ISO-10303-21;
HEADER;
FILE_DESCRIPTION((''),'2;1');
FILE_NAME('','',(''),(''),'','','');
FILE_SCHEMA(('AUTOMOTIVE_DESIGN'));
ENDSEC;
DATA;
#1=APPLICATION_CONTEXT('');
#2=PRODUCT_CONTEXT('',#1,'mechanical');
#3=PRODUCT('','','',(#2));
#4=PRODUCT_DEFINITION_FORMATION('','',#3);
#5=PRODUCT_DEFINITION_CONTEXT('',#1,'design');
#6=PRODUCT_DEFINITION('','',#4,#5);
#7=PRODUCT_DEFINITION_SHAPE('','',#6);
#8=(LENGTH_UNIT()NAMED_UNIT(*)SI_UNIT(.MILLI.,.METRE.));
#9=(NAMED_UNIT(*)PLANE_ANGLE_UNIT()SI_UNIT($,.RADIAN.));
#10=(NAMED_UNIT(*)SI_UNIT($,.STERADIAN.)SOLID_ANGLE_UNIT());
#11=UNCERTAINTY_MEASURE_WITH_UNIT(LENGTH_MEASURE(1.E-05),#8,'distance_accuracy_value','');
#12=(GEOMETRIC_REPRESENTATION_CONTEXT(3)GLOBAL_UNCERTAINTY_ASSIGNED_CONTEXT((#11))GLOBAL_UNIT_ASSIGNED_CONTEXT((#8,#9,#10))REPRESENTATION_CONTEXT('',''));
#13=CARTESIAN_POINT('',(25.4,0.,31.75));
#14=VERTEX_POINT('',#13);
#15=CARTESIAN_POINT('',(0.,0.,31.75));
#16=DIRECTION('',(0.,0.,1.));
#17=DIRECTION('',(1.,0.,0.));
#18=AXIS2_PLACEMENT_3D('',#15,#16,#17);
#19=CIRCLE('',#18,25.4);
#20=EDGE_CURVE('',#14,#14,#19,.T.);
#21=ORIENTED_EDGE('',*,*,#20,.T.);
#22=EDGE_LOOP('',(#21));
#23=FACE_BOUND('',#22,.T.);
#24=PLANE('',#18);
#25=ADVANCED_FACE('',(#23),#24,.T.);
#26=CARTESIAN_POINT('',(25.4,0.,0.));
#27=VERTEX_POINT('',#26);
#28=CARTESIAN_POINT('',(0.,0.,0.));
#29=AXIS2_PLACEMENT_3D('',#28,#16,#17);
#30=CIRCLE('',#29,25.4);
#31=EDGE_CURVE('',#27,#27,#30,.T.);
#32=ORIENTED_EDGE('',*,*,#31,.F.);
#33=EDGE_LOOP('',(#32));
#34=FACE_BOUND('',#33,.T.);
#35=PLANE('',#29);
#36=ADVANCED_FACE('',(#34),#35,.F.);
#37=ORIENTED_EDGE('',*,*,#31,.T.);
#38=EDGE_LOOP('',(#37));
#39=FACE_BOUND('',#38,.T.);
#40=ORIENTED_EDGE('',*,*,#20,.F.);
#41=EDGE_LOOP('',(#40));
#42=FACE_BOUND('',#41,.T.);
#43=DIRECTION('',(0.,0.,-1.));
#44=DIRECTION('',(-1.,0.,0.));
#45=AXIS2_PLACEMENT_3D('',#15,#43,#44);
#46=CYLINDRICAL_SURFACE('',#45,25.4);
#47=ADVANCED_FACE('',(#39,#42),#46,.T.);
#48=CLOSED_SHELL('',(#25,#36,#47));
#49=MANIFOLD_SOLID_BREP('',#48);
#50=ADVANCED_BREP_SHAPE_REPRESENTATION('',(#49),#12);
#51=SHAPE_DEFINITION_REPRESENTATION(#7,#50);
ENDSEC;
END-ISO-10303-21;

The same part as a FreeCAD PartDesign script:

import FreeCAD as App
import Part
import Sketcher

V = App.Vector
Q = App.Units.Quantity

doc = App.newDocument("Part")
params = doc.addObject("Spreadsheet::Sheet", "Params")
for row, (alias, value) in enumerate([
    ("sketch1_diameter", "2 in"),
    ("pad1_length", "1.25 in"),
], start=1):
    params.set(f"A{row}", alias)
    params.set(f"B{row}", "=" + value)
    params.setAlias(f"B{row}", alias)

body = doc.addObject("PartDesign::Body", "Body")

sketch1 = body.newObject("Sketcher::SketchObject", "Sketch")
sketch1.AttachmentSupport = (doc.getObject("XY_Plane"), [""])
sketch1.MapMode = "FlatFace"
sketch1.addGeometry(Part.Circle(V(0, 0, 0), V(0, 0, 1), 25), False)
sketch1.addConstraint([
    Sketcher.Constraint("Coincident", 0, 3, -1, 1),
    Sketcher.Constraint("Diameter", 0, Q("2 in")),
])
sketch1.setExpression("Constraints[1]", "Params.sketch1_diameter")
pad1 = body.newObject("PartDesign::Pad", "Pad")
pad1.Profile = sketch1
pad1.setExpression("Length", "Params.pad1_length")

doc.recompute()
